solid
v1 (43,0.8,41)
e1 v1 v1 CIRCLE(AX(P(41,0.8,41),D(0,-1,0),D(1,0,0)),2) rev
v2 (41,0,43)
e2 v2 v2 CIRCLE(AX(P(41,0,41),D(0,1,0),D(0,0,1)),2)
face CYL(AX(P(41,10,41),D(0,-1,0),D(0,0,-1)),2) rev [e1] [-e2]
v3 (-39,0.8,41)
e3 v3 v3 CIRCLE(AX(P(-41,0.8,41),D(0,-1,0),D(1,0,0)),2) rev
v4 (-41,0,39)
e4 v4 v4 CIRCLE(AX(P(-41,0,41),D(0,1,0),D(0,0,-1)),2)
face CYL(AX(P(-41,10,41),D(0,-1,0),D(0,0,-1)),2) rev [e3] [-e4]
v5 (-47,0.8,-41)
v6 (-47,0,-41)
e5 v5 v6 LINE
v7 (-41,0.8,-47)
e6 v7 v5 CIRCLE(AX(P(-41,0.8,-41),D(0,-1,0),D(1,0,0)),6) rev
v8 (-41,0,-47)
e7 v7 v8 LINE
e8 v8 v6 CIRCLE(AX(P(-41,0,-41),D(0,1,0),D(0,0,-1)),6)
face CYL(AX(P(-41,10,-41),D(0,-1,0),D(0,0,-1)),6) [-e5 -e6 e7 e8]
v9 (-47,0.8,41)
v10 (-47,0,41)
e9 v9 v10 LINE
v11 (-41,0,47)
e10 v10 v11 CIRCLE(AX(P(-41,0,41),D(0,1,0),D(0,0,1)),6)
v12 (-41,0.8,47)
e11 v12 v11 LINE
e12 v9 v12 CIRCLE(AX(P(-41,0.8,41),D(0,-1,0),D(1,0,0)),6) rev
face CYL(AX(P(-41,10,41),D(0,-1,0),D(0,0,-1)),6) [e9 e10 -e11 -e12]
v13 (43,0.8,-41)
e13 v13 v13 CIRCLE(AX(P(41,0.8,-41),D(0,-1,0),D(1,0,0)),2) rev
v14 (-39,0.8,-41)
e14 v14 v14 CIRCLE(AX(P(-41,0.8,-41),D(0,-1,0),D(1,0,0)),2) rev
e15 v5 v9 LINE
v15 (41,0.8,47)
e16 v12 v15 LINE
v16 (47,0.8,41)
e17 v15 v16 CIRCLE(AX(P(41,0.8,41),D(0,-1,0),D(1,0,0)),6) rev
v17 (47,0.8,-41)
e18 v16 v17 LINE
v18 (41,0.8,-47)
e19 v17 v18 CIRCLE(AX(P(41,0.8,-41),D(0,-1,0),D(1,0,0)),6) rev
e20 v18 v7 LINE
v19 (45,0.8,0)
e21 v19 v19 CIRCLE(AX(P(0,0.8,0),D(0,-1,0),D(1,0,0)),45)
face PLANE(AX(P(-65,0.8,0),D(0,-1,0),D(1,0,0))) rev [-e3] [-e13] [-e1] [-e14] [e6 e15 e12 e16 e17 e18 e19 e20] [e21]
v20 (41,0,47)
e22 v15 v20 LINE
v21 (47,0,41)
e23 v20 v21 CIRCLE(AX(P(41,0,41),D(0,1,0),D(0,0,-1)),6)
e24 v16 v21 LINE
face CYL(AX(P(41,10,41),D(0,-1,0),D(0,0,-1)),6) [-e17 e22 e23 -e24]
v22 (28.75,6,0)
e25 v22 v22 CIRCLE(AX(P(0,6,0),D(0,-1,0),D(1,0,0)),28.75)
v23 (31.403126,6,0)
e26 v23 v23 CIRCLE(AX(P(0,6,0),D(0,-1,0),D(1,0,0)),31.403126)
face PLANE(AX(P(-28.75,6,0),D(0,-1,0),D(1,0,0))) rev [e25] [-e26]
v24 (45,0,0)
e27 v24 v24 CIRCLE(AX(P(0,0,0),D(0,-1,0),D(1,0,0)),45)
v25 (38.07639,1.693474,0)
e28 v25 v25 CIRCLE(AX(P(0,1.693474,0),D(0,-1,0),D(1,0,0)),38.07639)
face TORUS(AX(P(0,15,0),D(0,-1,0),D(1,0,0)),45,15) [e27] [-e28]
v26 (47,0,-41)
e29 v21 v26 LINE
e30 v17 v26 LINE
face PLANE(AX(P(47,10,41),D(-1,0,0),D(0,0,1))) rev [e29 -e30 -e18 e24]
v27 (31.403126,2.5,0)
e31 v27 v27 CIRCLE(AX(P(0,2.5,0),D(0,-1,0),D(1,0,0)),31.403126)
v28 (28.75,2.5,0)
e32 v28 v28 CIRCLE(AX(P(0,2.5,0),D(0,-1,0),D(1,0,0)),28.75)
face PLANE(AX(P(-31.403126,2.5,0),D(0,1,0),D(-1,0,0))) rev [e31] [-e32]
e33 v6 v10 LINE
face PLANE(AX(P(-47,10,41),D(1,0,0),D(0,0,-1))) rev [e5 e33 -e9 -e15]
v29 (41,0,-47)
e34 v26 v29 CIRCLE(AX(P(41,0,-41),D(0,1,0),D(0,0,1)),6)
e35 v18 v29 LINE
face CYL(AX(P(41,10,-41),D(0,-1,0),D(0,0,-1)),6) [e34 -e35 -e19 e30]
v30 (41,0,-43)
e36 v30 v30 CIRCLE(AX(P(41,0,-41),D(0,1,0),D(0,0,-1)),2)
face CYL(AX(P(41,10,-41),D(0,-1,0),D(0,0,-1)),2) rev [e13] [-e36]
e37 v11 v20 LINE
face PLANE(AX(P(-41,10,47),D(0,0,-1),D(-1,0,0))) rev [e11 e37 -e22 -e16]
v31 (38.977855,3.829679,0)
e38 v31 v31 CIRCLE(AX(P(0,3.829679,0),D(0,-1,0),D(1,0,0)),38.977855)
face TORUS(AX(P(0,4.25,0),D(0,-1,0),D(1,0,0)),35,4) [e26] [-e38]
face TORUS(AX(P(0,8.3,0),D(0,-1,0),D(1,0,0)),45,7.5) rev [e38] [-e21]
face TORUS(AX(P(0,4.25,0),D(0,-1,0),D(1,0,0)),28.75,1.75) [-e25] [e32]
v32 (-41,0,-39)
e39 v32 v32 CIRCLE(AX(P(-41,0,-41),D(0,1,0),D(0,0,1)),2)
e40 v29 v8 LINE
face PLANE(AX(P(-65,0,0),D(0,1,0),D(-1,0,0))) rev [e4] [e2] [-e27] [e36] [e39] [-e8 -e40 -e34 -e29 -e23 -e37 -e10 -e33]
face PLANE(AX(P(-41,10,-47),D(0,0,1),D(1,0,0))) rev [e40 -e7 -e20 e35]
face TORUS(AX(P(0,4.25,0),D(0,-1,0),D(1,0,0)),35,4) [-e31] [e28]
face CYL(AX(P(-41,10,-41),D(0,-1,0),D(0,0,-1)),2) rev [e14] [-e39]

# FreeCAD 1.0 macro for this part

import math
import FreeCAD as App
import Part
import Sketcher
from FreeCAD import Vector
Q = App.Units.Quantity


def add_polygon(sketch, points):
    """Adds a closed chain of lines whose ends are joined by coincident constraints."""
    first, n = sketch.GeometryCount, len(points)
    for a, b in zip(points, points[1:] + points[:1]):
        sketch.addGeometry(Part.LineSegment(App.Vector(*a, 0), App.Vector(*b, 0)), False)
    for i in range(n):
        sketch.addConstraint(Sketcher.Constraint("Coincident", first + i, 2, first + (i + 1) % n, 1))

doc = App.newDocument("Part")
params = doc.addObject("Spreadsheet::Sheet", "Params")
for row, (alias, value) in enumerate([
    ("sketch1_radius", "15 mm"),
    ("sketch1_radius2", "4 mm"),
    ("sketch1_radius3", "7.5 mm"),
    ("sketch1_width", "20 mm"),
    ("sketch1_radius4", "1.75 mm"),
    ("revolution_angle", "360 deg"),
    ("sketch2_diameter", "4 mm"),
    ("sketch2_radius", "6 mm"),
    ("sketch2_width", "82 mm"),
    ("pocket1_length", "10 mm"),
], start=1):
    params.set(f"A{row}", alias)
    params.set(f"B{row}", "=" + value)
    params.setAlias(f"B{row}", alias)

body = doc.addObject("PartDesign::Body", "Body")

# Sketch on XY plane
sketch1 = doc.addObject("Sketcher::SketchObject", "Sketch")
body.addObject(sketch1)
sketch1.AttachmentSupport = (doc.XY_Plane, [""])
sketch1.MapMode = "FlatFace"
sketch1.addGeometry(Part.LineSegment(Vector(-65, 0, 0), Vector(-45, 0, 0)), False)
sketch1.addGeometry(Part.ArcOfCircle(Part.Circle(Vector(-45, 15, 0), Vector(0, 0, 1), 15), math.radians(-90), math.radians(-63)), False)
sketch1.addGeometry(Part.ArcOfCircle(Part.Circle(Vector(-35, 4.2, 0), Vector(0, 0, 1), 4), math.radians(-140), math.radians(-26)), False)
sketch1.addGeometry(Part.LineSegment(Vector(-31.4, 2.5, 0), Vector(-28.8, 2.5, 0)), False)
sketch1.addGeometry(Part.ArcOfCircle(Part.Circle(Vector(-28.8, 4.2, 0), Vector(0, 0, 1), 1.8), math.radians(-90), math.radians(90)), False)
sketch1.addGeometry(Part.LineSegment(Vector(-28.8, 6, 0), Vector(-31.4, 6, 0)), False)
sketch1.addGeometry(Part.ArcOfCircle(Part.Circle(Vector(-35, 4.2, 0), Vector(0, 0, 1), 4), math.radians(26), math.radians(186)), False)
sketch1.addGeometry(Part.ArcOfCircle(Part.Circle(Vector(-45, 8.3, 0), Vector(0, 0, 1), 7.5), math.radians(-90), math.radians(-37)), False)
sketch1.addGeometry(Part.LineSegment(Vector(-45, 0.8, 0), Vector(-65, 0.8, 0)), False)
sketch1.addGeometry(Part.LineSegment(Vector(-65, 0.8, 0), Vector(-65, 0, 0)), False)
sketch1.addConstraint(Sketcher.Constraint("Tangent", 0, 2, 1, 1))
sketch1.addConstraint(Sketcher.Constraint("Coincident", 1, 2, 2, 1))
sketch1.addConstraint(Sketcher.Constraint("Coincident", 2, 2, 3, 1))
sketch1.addConstraint(Sketcher.Constraint("Tangent", 3, 2, 4, 1))
sketch1.addConstraint(Sketcher.Constraint("Tangent", 4, 2, 5, 1))
sketch1.addConstraint(Sketcher.Constraint("Coincident", 5, 2, 6, 1))
sketch1.addConstraint(Sketcher.Constraint("Coincident", 6, 2, 7, 2))
sketch1.addConstraint(Sketcher.Constraint("Tangent", 7, 1, 8, 1))
sketch1.addConstraint(Sketcher.Constraint("Coincident", 8, 2, 9, 1))
sketch1.addConstraint(Sketcher.Constraint("Coincident", 9, 2, 0, 1))
sketch1.addConstraint(Sketcher.Constraint("Horizontal", 0))
sketch1.addConstraint(Sketcher.Constraint("Horizontal", 3))
sketch1.addConstraint(Sketcher.Constraint("Horizontal", 5))
sketch1.addConstraint(Sketcher.Constraint("Horizontal", 8))
sketch1.addConstraint(Sketcher.Constraint("Vertical", 9))
sketch1.addConstraint(Sketcher.Constraint("Coincident", 6, 3, 2, 3))
sketch1.addConstraint(Sketcher.Constraint("Equal", 2, 6))
sketch1.addConstraint(Sketcher.Constraint("PointOnObject", 0, 2, -1))
sketch1.addConstraint(Sketcher.Constraint("Horizontal", 2, 3, 4, 3))
sketch1.addConstraint(Sketcher.Constraint("Vertical", 1, 3, 7, 3))
sketch1.addConstraint(Sketcher.Constraint("Radius", 1, Q("15 mm")))
sketch1.addConstraint(Sketcher.Constraint("Radius", 2, Q("4 mm")))
sketch1.addConstraint(Sketcher.Constraint("Radius", 7, Q("7.5 mm")))
sketch1.addConstraint(Sketcher.Constraint("DistanceX", 0, 1, 0, 2, Q("20 mm")))
sketch1.addConstraint(Sketcher.Constraint("Radius", 4, Q("1.75 mm")))
sketch1.addConstraint(Sketcher.Constraint("DistanceY", 9, 2, 9, 1, Q("0.8 mm")))
sketch1.addConstraint(Sketcher.Constraint("DistanceX", 1, 3, -1, 1, Q("45 mm")))
sketch1.addConstraint(Sketcher.Constraint("DistanceX", 2, 3, -1, 1, Q("35 mm")))
sketch1.addConstraint(Sketcher.Constraint("DistanceY", -1, 1, 4, 2, Q("6 mm")))
sketch1.addConstraint(Sketcher.Constraint("DistanceX", 4, 3, -1, 1, Q("28.75 mm")))
sketch1.setExpression("Constraints[20]", "Params.sketch1_radius")
sketch1.setExpression("Constraints[21]", "Params.sketch1_radius2")
sketch1.setExpression("Constraints[22]", "Params.sketch1_radius3")
sketch1.setExpression("Constraints[23]", "Params.sketch1_width")
sketch1.setExpression("Constraints[24]", "Params.sketch1_radius4")
revolution = doc.addObject("PartDesign::Revolution", "Revolution")
body.addObject(revolution)
revolution.Profile = sketch1
revolution.ReferenceAxis = (sketch1, ["V_Axis"])
revolution.setExpression("Angle", "Params.revolution_angle")

# Sketch on XZ plane
sketch2 = doc.addObject("Sketcher::SketchObject", "Sketch001")
body.addObject(sketch2)
sketch2.AttachmentSupport = (doc.XZ_Plane, [""])
sketch2.MapMode = "FlatFace"
add_polygon(sketch2, [(-84.4, -84.4), (-84.4, 84.4), (84.4, 84.4), (84.4, -84.4)])  # lines 0-3
sketch2.addGeometry(Part.ArcOfCircle(Part.Circle(Vector(-41, 41, 0), Vector(0, 0, 1), 6), math.radians(90), math.radians(180)), False)  # 4
sketch2.addGeometry(Part.LineSegment(Vector(-47, 41, 0), Vector(-47, -41, 0)), False)  # 5
sketch2.addGeometry(Part.ArcOfCircle(Part.Circle(Vector(-41, -41, 0), Vector(0, 0, 1), 6), math.radians(180), math.radians(270)), False)  # 6
sketch2.addGeometry(Part.LineSegment(Vector(-41, -47, 0), Vector(41, -47, 0)), False)  # 7
sketch2.addGeometry(Part.ArcOfCircle(Part.Circle(Vector(41, -41, 0), Vector(0, 0, 1), 6), math.radians(-90), math.radians(0)), False)  # 8
sketch2.addGeometry(Part.LineSegment(Vector(47, -41, 0), Vector(47, 41, 0)), False)  # 9
sketch2.addGeometry(Part.ArcOfCircle(Part.Circle(Vector(41, 41, 0), Vector(0, 0, 1), 6), math.radians(0), math.radians(90)), False)  # 10
sketch2.addGeometry(Part.LineSegment(Vector(41, 47, 0), Vector(-41, 47, 0)), False)  # 11
sketch2.addGeometry(Part.Circle(Vector(-41, -41, 0), Vector(0, 0, 1), 2), False)  # 12
sketch2.addGeometry(Part.Circle(Vector(-41, 41, 0), Vector(0, 0, 1), 2), False)  # 13
sketch2.addGeometry(Part.Circle(Vector(41, 41, 0), Vector(0, 0, 1), 2), False)  # 14
sketch2.addGeometry(Part.Circle(Vector(41, -41, 0), Vector(0, 0, 1), 2), False)  # 15
sketch2.addConstraint(Sketcher.Constraint("Tangent", 4, 2, 5, 1))
sketch2.addConstraint(Sketcher.Constraint("Tangent", 5, 2, 6, 1))
sketch2.addConstraint(Sketcher.Constraint("Tangent", 6, 2, 7, 1))
sketch2.addConstraint(Sketcher.Constraint("Tangent", 7, 2, 8, 1))
sketch2.addConstraint(Sketcher.Constraint("Tangent", 8, 2, 9, 1))
sketch2.addConstraint(Sketcher.Constraint("Tangent", 9, 2, 10, 1))
sketch2.addConstraint(Sketcher.Constraint("Tangent", 10, 2, 11, 1))
sketch2.addConstraint(Sketcher.Constraint("Tangent", 11, 2, 4, 1))
sketch2.addConstraint(Sketcher.Constraint("Vertical", 0))
sketch2.addConstraint(Sketcher.Constraint("Horizontal", 1))
sketch2.addConstraint(Sketcher.Constraint("Vertical", 2))
sketch2.addConstraint(Sketcher.Constraint("Horizontal", 3))
sketch2.addConstraint(Sketcher.Constraint("Vertical", 5))
sketch2.addConstraint(Sketcher.Constraint("Horizontal", 7))
sketch2.addConstraint(Sketcher.Constraint("Vertical", 9))
sketch2.addConstraint(Sketcher.Constraint("Horizontal", 11))
sketch2.addConstraint(Sketcher.Constraint("Coincident", 12, 3, 6, 3))
sketch2.addConstraint(Sketcher.Constraint("Coincident", 13, 3, 4, 3))
sketch2.addConstraint(Sketcher.Constraint("Coincident", 14, 3, 10, 3))
sketch2.addConstraint(Sketcher.Constraint("Coincident", 15, 3, 8, 3))
sketch2.addConstraint(Sketcher.Constraint("Equal", 4, 6))
sketch2.addConstraint(Sketcher.Constraint("Equal", 6, 8))
sketch2.addConstraint(Sketcher.Constraint("Equal", 8, 10))
sketch2.addConstraint(Sketcher.Constraint("Equal", 12, 13))
sketch2.addConstraint(Sketcher.Constraint("Equal", 13, 14))
sketch2.addConstraint(Sketcher.Constraint("Equal", 14, 15))
sketch2.addConstraint(Sketcher.Constraint("Symmetric", 4, 3, 8, 3, -1, 1))
sketch2.addConstraint(Sketcher.Constraint("Symmetric", 0, 2, 2, 2, -1, 1))
sketch2.addConstraint(Sketcher.Constraint("Equal", 3, 0))
sketch2.addConstraint(Sketcher.Constraint("Equal", 11, 5))
sketch2.addConstraint(Sketcher.Constraint("Diameter", 12, Q("4 mm")))
sketch2.addConstraint(Sketcher.Constraint("Radius", 4, Q("6 mm")))
sketch2.addConstraint(Sketcher.Constraint("DistanceX", 7, 1, 7, 2, Q("82 mm")))
sketch2.addConstraint(Sketcher.Constraint("DistanceX", 1, 1, 1, 2, Q("168.806 mm")))
sketch2.setExpression("Constraints[34]", "Params.sketch2_diameter")
sketch2.setExpression("Constraints[35]", "Params.sketch2_radius")
sketch2.setExpression("Constraints[36]", "Params.sketch2_width")
pocket1 = doc.addObject("PartDesign::Pocket", "Pocket")
body.addObject(pocket1)
pocket1.Profile = sketch2
pocket1.setExpression("Length", "Params.pocket1_length")

doc.recompute()
